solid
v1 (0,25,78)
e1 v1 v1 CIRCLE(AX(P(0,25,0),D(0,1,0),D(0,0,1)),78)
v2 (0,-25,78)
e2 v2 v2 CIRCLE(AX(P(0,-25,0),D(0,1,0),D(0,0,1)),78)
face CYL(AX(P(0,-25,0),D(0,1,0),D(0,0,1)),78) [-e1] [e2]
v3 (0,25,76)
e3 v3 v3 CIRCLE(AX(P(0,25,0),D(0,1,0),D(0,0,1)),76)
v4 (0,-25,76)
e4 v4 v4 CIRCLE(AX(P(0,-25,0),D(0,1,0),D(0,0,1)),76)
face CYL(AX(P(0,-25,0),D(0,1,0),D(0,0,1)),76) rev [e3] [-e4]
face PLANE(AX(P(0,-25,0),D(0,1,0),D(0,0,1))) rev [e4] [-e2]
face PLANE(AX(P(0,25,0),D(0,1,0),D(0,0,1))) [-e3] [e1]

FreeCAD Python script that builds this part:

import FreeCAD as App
import Part
import Sketcher
from FreeCAD import Vector

doc = App.newDocument("Part")
body = doc.addObject("PartDesign::Body", "Body")

sketch1 = body.newObject("Sketcher::SketchObject", "Sketch")
sketch1.AttachmentSupport = (doc.getObject("XZ_Plane"), [""])
sketch1.MapMode = "FlatFace"
sketch1.addGeometry([
    Part.Circle(Vector(0, 0, 0), Vector(0, 0, 1), 78),
    Part.Circle(Vector(0, 0, 0), Vector(0, 0, 1), 76),
], False)
sketch1.addConstraint([
    Sketcher.Constraint("Coincident", 0, 3, -1, 1),
    Sketcher.Constraint("Coincident", 1, 3, -1, 1),
    Sketcher.Constraint("Diameter", 0, 156.0),
    Sketcher.Constraint("Diameter", 1, 152.0),
])
pad1 = body.newObject("PartDesign::Pad", "Pad")
pad1.Profile = sketch1
pad1.Type = "TwoLengths"
pad1.Length = 25
pad1.Length2 = 25
pad1.Reversed = True

doc.recompute()
